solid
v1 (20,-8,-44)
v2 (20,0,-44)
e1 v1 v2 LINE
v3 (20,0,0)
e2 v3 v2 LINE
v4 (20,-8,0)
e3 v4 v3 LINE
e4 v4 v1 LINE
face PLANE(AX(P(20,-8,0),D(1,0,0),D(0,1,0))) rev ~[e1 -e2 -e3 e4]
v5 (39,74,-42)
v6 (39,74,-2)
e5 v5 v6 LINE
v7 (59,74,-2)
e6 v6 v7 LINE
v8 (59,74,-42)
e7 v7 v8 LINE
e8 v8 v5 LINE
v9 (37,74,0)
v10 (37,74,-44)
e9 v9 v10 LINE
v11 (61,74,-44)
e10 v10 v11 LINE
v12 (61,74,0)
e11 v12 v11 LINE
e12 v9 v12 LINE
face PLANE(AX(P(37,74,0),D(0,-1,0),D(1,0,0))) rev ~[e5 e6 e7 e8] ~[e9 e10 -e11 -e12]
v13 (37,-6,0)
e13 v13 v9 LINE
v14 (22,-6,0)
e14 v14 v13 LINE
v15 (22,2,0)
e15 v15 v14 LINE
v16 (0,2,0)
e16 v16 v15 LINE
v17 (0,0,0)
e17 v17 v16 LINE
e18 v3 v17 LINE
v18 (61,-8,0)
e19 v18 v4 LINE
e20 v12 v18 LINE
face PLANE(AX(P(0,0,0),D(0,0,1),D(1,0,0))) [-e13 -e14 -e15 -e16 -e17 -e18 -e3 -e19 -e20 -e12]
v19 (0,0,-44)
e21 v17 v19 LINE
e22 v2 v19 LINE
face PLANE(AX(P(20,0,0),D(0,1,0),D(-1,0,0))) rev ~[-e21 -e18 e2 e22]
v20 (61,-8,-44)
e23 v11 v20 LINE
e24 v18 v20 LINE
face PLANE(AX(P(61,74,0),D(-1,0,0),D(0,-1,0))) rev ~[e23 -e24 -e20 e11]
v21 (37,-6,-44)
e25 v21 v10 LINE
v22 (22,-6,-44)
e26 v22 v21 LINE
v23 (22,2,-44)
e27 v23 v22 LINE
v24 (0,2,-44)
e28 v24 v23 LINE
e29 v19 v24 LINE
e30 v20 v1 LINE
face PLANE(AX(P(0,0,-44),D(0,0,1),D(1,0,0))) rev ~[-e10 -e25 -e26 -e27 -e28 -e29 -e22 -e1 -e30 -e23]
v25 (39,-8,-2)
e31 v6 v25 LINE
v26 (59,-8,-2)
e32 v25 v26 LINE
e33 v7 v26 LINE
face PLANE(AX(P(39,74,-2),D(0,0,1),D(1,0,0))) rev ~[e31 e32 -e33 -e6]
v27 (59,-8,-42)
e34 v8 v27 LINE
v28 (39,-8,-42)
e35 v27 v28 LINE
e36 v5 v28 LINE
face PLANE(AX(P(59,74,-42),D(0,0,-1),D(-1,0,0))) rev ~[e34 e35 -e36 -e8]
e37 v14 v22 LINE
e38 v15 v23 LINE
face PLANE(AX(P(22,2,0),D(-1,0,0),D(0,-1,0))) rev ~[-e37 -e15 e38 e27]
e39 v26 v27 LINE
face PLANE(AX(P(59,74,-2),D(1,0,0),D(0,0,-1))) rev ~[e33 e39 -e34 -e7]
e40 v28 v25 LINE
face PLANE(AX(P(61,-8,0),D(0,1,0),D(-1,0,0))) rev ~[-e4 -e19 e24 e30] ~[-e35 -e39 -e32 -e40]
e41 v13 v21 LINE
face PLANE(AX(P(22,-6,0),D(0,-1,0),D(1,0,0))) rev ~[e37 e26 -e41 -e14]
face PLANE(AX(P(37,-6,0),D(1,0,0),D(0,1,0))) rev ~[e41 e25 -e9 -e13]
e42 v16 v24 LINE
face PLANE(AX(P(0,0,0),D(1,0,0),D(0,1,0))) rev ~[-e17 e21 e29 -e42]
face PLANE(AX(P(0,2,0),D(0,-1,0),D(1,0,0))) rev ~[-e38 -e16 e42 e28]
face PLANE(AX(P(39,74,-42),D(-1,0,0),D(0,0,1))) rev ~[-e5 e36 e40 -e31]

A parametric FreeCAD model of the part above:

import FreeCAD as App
import Part
import Sketcher

V = App.Vector

doc = App.newDocument("Part")
body = doc.addObject("PartDesign::Body", "Body")

# Sketch on XY plane
sketch1 = body.newObject("Sketcher::SketchObject", "Sketch")
sketch1.AttachmentSupport = (doc.getObject("XY_Plane"), [""])
sketch1.MapMode = "FlatFace"
sketch1.addGeometry([
    Part.LineSegment(V(0, 2, 0), V(0, 0, 0)),  # 0
    Part.LineSegment(V(0, 0, 0), V(20, 0, 0)),  # 1
    Part.LineSegment(V(20, 0, 0), V(20, -8, 0)),  # 2
    Part.LineSegment(V(20, -8, 0), V(61, -8, 0)),  # 3
    Part.LineSegment(V(61, -8, 0), V(61, 74, 0)),  # 4
    Part.LineSegment(V(61, 74, 0), V(37, 74, 0)),  # 5
    Part.LineSegment(V(37, 74, 0), V(37, -6, 0)),  # 6
    Part.LineSegment(V(37, -6, 0), V(22, -6, 0)),  # 7
    Part.LineSegment(V(22, -6, 0), V(22, 2, 0)),  # 8
    Part.LineSegment(V(22, 2, 0), V(0, 2, 0)),  # 9
], False)
sketch1.addConstraint([
    Sketcher.Constraint("Coincident", 0, 2, 1, 1),
    Sketcher.Constraint("Coincident", 1, 2, 2, 1),
    Sketcher.Constraint("Coincident", 2, 2, 3, 1),
    Sketcher.Constraint("Coincident", 3, 2, 4, 1),
    Sketcher.Constraint("Coincident", 4, 2, 5, 1),
    Sketcher.Constraint("Coincident", 5, 2, 6, 1),
    Sketcher.Constraint("Coincident", 6, 2, 7, 1),
    Sketcher.Constraint("Coincident", 7, 2, 8, 1),
    Sketcher.Constraint("Coincident", 8, 2, 9, 1),
    Sketcher.Constraint("Coincident", 9, 2, 0, 1),
    Sketcher.Constraint("Vertical", 0),
    Sketcher.Constraint("Horizontal", 1),
    Sketcher.Constraint("Vertical", 2),
    Sketcher.Constraint("Horizontal", 3),
    Sketcher.Constraint("Vertical", 4),
    Sketcher.Constraint("Horizontal", 5),
    Sketcher.Constraint("Vertical", 6),
    Sketcher.Constraint("Horizontal", 7),
    Sketcher.Constraint("Vertical", 8),
    Sketcher.Constraint("Horizontal", 9),
    Sketcher.Constraint("Coincident", 0, 2, -1, 1),
    Sketcher.Constraint("Equal", 2, 8),
    Sketcher.Constraint("DistanceX", 3, 1, 3, 2, 41.0),
    Sketcher.Constraint("DistanceX", 5, 2, 5, 1, 24.0),
    Sketcher.Constraint("DistanceX", 7, 2, 7, 1, 15.0),
    Sketcher.Constraint("DistanceX", 9, 2, 9, 1, 22.0),
    Sketcher.Constraint("DistanceY", 0, 2, 0, 1, 2.0),
    Sketcher.Constraint("DistanceY", 2, 2, 2, 1, 8.0),
    Sketcher.Constraint("DistanceY", 4, 1, 4, 2, 82.0),
])
pad1 = body.newObject("PartDesign::Pad", "Pad")
pad1.Profile = sketch1
pad1.Length = 44
pad1.Reversed = True

# Sketch on XZ plane
sketch2 = body.newObject("Sketcher::SketchObject", "Sketch001")
sketch2.AttachmentSupport = (doc.getObject("XZ_Plane"), [""])
sketch2.MapMode = "FlatFace"
sketch2.AttachmentOffset = App.Placement(V(0, 0, -74), App.Rotation())
sketch2.addGeometry([
    Part.LineSegment(V(39, -42, 0), V(39, -2, 0)),
    Part.LineSegment(V(39, -2, 0), V(59, -2, 0)),
    Part.LineSegment(V(59, -2, 0), V(59, -42, 0)),
    Part.LineSegment(V(59, -42, 0), V(39, -42, 0)),
], False)
sketch2.addConstraint([
    Sketcher.Constraint("Coincident", 0, 2, 1, 1),
    Sketcher.Constraint("Coincident", 1, 2, 2, 1),
    Sketcher.Constraint("Coincident", 2, 2, 3, 1),
    Sketcher.Constraint("Coincident", 3, 2, 0, 1),
    Sketcher.Constraint("Vertical", 0),
    Sketcher.Constraint("Horizontal", 1),
    Sketcher.Constraint("Vertical", 2),
    Sketcher.Constraint("Horizontal", 3),
    Sketcher.Constraint("DistanceX", 1, 1, 1, 2, 20.0),
    Sketcher.Constraint("DistanceY", 0, 1, 0, 2, 40.0),
    Sketcher.Constraint("DistanceX", -1, 1, 0, 2, 39.0),
    Sketcher.Constraint("DistanceY", 0, 2, -1, 1, 2.0),
])
pocket1 = body.newObject("PartDesign::Pocket", "Pocket")
pocket1.Profile = sketch2
pocket1.Length = 200
pocket1.Reversed = True

doc.recompute()
